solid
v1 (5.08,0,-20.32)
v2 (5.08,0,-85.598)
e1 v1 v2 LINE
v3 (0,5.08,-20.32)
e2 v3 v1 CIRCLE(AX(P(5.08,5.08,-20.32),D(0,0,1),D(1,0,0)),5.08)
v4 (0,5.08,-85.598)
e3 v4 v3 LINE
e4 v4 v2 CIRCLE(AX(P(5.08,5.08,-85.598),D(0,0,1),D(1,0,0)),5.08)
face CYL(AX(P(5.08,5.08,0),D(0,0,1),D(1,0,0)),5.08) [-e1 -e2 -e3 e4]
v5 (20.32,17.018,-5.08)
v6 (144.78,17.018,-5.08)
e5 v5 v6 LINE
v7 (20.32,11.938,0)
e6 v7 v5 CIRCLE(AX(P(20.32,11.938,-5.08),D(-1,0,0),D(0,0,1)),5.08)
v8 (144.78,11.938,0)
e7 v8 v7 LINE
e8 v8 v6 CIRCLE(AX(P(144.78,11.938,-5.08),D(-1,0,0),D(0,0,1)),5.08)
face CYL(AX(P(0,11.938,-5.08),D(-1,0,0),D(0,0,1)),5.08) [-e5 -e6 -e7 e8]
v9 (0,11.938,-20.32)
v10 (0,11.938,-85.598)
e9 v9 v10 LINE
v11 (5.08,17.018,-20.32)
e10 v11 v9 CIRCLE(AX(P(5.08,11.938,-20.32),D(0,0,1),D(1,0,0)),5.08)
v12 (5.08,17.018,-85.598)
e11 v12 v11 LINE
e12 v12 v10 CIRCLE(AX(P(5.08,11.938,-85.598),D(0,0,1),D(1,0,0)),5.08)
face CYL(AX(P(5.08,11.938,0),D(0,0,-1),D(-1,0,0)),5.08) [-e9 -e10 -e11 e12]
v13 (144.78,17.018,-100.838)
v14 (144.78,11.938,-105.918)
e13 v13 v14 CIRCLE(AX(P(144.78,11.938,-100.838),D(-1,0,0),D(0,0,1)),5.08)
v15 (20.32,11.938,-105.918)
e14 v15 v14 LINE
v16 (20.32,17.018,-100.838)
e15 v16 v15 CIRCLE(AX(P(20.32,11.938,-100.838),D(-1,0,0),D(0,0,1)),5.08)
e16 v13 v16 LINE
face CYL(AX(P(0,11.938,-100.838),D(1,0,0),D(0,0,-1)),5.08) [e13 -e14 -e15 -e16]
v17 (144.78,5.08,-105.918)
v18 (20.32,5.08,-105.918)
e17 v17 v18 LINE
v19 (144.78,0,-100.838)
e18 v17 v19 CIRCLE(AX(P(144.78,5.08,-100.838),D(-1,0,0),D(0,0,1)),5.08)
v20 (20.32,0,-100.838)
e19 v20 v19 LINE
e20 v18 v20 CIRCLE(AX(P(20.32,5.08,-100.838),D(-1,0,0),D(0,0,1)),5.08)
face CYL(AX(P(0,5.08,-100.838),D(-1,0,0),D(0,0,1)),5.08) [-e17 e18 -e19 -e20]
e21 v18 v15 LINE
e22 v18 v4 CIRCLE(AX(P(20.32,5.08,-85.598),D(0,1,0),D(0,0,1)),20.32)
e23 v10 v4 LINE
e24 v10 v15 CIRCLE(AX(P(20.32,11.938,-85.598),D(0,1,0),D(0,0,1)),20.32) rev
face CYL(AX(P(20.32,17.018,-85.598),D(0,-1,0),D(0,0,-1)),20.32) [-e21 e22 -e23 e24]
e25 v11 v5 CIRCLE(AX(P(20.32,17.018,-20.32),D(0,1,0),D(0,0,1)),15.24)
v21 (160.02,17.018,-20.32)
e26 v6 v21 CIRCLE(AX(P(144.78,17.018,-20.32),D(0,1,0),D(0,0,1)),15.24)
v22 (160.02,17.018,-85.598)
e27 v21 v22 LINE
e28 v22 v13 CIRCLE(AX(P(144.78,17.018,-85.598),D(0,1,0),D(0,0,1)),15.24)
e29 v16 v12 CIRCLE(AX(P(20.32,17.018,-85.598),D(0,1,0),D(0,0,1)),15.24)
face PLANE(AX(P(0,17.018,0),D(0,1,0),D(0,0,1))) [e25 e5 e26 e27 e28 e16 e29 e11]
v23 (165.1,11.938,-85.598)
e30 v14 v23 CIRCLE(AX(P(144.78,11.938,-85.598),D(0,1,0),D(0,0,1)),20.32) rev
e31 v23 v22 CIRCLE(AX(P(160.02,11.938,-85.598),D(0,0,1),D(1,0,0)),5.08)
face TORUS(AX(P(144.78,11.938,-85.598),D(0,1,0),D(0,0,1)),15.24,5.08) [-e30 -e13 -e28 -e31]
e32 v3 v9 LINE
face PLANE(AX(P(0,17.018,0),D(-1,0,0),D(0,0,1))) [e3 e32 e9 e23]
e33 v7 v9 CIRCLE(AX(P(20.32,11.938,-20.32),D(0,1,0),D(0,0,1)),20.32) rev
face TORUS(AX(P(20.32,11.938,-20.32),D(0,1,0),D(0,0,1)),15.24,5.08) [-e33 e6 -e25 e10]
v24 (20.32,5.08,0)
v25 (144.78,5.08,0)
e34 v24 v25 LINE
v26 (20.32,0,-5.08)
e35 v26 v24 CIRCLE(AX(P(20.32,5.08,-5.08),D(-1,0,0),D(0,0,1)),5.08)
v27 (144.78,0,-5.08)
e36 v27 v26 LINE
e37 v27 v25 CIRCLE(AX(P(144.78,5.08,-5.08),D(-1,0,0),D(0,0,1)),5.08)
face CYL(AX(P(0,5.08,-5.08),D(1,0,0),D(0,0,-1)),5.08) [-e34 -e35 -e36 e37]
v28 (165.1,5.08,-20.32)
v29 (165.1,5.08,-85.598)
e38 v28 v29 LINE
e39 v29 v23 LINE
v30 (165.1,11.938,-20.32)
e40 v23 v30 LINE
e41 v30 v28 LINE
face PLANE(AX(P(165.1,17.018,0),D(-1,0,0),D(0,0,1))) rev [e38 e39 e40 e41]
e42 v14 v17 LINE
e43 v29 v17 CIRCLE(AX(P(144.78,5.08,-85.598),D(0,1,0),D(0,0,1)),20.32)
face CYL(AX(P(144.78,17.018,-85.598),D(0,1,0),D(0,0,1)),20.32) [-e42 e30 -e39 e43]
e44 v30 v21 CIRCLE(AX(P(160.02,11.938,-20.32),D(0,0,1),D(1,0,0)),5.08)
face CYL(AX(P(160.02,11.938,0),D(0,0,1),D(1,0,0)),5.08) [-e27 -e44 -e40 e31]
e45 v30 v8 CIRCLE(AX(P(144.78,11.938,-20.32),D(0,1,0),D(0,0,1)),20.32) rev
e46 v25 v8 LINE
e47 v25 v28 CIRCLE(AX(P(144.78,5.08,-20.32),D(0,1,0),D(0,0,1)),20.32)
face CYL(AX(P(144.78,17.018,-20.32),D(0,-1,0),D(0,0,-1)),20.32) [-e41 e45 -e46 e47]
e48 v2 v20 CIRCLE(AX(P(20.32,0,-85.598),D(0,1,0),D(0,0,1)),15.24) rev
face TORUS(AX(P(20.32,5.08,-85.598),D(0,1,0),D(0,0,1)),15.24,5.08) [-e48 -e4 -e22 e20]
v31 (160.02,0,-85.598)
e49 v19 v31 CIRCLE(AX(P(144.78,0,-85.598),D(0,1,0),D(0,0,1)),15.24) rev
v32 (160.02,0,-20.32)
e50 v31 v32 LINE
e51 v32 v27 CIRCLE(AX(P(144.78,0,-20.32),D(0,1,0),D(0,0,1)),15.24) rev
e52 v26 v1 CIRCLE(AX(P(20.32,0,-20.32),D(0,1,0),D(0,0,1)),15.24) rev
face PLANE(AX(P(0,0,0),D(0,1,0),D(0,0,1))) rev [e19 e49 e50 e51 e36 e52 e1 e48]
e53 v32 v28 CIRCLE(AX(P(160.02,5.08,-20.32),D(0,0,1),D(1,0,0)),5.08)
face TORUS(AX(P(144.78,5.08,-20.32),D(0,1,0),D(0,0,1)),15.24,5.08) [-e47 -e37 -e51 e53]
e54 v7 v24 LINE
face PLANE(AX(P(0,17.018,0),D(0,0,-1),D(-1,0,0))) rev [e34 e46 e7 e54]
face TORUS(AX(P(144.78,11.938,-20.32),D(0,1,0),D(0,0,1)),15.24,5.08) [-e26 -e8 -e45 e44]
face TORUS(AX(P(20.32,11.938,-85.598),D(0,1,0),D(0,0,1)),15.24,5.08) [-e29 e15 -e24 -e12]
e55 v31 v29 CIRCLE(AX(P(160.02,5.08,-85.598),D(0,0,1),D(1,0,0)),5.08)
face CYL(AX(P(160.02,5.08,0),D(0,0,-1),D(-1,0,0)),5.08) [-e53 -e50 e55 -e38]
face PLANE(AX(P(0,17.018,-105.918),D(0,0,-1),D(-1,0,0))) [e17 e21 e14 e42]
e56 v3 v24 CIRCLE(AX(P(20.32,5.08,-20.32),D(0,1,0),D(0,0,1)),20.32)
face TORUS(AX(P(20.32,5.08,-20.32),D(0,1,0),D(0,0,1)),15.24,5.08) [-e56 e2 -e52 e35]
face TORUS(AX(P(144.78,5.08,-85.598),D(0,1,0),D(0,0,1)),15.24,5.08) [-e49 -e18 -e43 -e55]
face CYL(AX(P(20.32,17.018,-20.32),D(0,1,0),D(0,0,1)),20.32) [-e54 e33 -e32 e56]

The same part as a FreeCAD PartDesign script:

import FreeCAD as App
import Part
import Sketcher
Q = App.Units.Quantity


def edges_at(feature, points):
    """Names of the edges that pass closest to the given points."""
    edges = feature.Shape.Edges
    near = lambda p: min(range(len(edges)), key=lambda i: edges[i].distToShape(Part.Vertex(*p))[0])
    return sorted({f"Edge{near(p) + 1}" for p in points})

doc = App.newDocument("Part")
body = doc.addObject("PartDesign::Body", "Body")

# Sketch on XZ plane
sketch1 = body.newObject("Sketcher::SketchObject", "Sketch")
sketch1.AttachmentSupport = (doc.getObject("XZ_Plane"), [""])
sketch1.MapMode = "FlatFace"
sketch1.addGeometry([
    Part.LineSegment(App.Vector(0, -105.918, 0), App.Vector(0, 0, 0)),
    Part.LineSegment(App.Vector(0, 0, 0), App.Vector(165.1, 0, 0)),
    Part.LineSegment(App.Vector(165.1, 0, 0), App.Vector(165.1, -105.918, 0)),
    Part.LineSegment(App.Vector(165.1, -105.918, 0), App.Vector(0, -105.918, 0)),
], False)
sketch1.addConstraint([
    Sketcher.Constraint("Coincident", 0, 2, 1, 1),
    Sketcher.Constraint("Coincident", 1, 2, 2, 1),
    Sketcher.Constraint("Coincident", 2, 2, 3, 1),
    Sketcher.Constraint("Coincident", 3, 2, 0, 1),
    Sketcher.Constraint("Vertical", 0),
    Sketcher.Constraint("Horizontal", 1),
    Sketcher.Constraint("Vertical", 2),
    Sketcher.Constraint("Horizontal", 3),
    Sketcher.Constraint("Coincident", 0, 2, -1, 1),
    Sketcher.Constraint("DistanceX", 1, 1, 1, 2, Q("6.5 in")),
    Sketcher.Constraint("DistanceY", 0, 1, 0, 2, Q("4.17 in")),
])
pad1 = body.newObject("PartDesign::Pad", "Pad")
pad1.Profile = sketch1
pad1.Length = Q("0.67 in")
pad1.Reversed = True
doc.recompute()

fillet = body.newObject("PartDesign::Fillet", "Fillet")
fillet.Base = (pad1, edges_at(pad1, [
    (0, 8.509, -105.918),
    (0, 8.509, 0),
    (165.1, 8.509, 0),
    (165.1, 8.509, -105.918),
]))
fillet.Radius = Q("0.8 in")
doc.recompute()

fillet2 = body.newObject("PartDesign::Fillet", "Fillet001")
fillet2.Base = (fillet, edges_at(fillet, [
    (165.1, 17.018, -52.959),
    (82.55, 17.018, 0),
    (82.55, 17.018, -105.918),
    (0, 17.018, -52.959),
    (5.952, 17.018, -5.952),
    (5.952, 17.018, -99.966),
    (159.148, 17.018, -99.966),
    (159.148, 17.018, -5.952),
]))
fillet2.Radius = Q("0.2 in")
doc.recompute()

fillet3 = body.newObject("PartDesign::Fillet", "Fillet002")
fillet3.Base = (fillet2, edges_at(fillet2, [
    (165.1, 0, -52.959),
    (82.55, 0, -105.918),
    (82.55, 0, 0),
    (0, 0, -52.959),
    (5.952, 0, -5.952),
    (5.952, 0, -99.966),
    (159.148, 0, -99.966),
    (159.148, 0, -5.952),
]))
fillet3.Radius = Q("0.2 in")

doc.recompute()
